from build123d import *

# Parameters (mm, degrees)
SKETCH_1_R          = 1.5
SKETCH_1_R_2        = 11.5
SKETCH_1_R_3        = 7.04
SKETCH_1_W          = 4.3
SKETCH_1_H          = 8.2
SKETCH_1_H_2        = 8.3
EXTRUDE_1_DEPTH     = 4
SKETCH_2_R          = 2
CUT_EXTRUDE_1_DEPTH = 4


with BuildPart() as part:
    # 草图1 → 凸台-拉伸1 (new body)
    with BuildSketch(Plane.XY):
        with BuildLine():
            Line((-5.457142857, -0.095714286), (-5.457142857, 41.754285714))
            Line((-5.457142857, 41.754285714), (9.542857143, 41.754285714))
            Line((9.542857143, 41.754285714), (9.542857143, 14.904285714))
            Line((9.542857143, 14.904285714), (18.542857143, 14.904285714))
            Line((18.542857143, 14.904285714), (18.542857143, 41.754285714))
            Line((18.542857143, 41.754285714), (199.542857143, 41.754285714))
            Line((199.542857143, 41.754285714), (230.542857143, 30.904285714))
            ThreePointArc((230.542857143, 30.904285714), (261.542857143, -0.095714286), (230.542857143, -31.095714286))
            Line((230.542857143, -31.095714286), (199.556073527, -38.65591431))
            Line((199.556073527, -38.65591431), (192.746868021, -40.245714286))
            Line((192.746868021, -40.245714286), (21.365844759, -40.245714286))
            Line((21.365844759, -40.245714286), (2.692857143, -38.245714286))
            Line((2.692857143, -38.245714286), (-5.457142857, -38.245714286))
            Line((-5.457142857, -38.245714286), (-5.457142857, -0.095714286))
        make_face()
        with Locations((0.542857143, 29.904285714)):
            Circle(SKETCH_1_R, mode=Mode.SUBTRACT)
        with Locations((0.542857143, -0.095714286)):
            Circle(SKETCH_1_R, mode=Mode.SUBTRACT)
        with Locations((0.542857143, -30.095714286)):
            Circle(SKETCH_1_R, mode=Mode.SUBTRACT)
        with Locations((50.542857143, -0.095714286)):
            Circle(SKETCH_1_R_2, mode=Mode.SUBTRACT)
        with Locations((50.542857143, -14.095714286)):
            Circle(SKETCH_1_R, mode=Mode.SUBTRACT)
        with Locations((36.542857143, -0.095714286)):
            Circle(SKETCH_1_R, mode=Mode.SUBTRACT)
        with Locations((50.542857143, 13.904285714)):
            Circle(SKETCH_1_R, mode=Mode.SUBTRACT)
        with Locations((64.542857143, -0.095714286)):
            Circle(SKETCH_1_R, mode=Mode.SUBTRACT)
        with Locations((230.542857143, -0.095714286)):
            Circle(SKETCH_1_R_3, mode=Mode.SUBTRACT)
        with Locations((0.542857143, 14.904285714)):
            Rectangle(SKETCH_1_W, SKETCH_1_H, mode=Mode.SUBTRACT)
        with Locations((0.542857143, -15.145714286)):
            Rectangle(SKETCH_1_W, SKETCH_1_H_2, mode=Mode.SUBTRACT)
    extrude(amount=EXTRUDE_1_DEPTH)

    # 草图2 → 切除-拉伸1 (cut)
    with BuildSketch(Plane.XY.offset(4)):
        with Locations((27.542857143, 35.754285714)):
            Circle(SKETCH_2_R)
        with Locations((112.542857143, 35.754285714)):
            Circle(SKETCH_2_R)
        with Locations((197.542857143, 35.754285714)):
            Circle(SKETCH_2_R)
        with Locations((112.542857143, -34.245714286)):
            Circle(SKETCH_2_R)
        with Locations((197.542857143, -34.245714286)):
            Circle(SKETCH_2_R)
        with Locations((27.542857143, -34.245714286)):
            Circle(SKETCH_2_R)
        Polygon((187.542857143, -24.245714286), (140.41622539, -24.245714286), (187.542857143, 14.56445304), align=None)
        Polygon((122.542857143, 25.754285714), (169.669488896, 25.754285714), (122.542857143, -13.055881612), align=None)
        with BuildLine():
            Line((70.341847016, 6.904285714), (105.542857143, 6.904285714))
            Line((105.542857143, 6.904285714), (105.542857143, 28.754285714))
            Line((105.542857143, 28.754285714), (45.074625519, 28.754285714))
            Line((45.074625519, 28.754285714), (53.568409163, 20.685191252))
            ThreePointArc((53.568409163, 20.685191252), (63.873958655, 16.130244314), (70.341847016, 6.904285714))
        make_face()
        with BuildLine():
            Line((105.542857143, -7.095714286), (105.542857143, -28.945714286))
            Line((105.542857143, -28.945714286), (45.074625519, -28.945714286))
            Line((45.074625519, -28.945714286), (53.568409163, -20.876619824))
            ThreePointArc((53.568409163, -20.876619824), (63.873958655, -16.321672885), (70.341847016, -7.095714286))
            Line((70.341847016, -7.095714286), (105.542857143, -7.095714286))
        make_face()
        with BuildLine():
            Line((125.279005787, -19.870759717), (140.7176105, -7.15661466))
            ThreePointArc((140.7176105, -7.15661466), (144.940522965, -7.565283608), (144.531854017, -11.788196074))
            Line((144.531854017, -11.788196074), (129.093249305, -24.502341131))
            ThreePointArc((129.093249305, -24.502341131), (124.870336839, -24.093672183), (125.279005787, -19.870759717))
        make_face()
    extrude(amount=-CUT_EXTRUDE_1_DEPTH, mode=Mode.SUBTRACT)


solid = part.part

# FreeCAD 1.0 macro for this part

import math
import FreeCAD as App
import Part
import Sketcher
from FreeCAD import Vector
Q = App.Units.Quantity

doc = App.newDocument("Part")
body = doc.addObject("PartDesign::Body", "Body")

# Sketch on XY plane
sketch1 = body.newObject("Sketcher::SketchObject", "Sketch")
sketch1.AttachmentSupport = (doc.getObject("XY_Plane"), [""])
sketch1.MapMode = "FlatFace"
sketch1.addGeometry(Part.LineSegment(Vector(9.5, 41.8, 0), Vector(-5.5, 41.8, 0)), False)
sketch1.addGeometry(Part.LineSegment(Vector(-5.5, 41.8, 0), Vector(-5.5, -38.2, 0)), False)
sketch1.addGeometry(Part.LineSegment(Vector(-5.5, -38.2, 0), Vector(2.7, -38.2, 0)), False)
sketch1.addGeometry(Part.LineSegment(Vector(2.7, -38.2, 0), Vector(21.4, -40.2, 0)), False)
sketch1.addGeometry(Part.LineSegment(Vector(21.4, -40.2, 0), Vector(192.7, -40.2, 0)), False)
sketch1.addGeometry(Part.LineSegment(Vector(192.7, -40.2, 0), Vector(199.6, -38.7, 0)), False)
sketch1.addGeometry(Part.LineSegment(Vector(199.6, -38.7, 0), Vector(230.5, -31.1, 0)), False)
sketch1.addGeometry(Part.ArcOfCircle(Part.Circle(Vector(230.5, -0.1, 0), Vector(0, 0, 1), 31), math.radians(-90), math.radians(90)), False)
sketch1.addGeometry(Part.LineSegment(Vector(230.5, 30.9, 0), Vector(199.5, 41.8, 0)), False)
sketch1.addGeometry(Part.LineSegment(Vector(199.5, 41.8, 0), Vector(18.5, 41.8, 0)), False)
sketch1.addGeometry(Part.LineSegment(Vector(18.5, 41.8, 0), Vector(18.5, 14.9, 0)), False)
sketch1.addGeometry(Part.LineSegment(Vector(18.5, 14.9, 0), Vector(9.5, 14.9, 0)), False)
sketch1.addGeometry(Part.LineSegment(Vector(9.5, 14.9, 0), Vector(9.5, 41.8, 0)), False)
sketch1.addGeometry(Part.Circle(Vector(0.5, -30.1, 0), Vector(0, 0, 1), 1.5), False)
sketch1.addGeometry(Part.Circle(Vector(50.5, -14.1, 0), Vector(0, 0, 1), 1.5), False)
sketch1.addGeometry(Part.LineSegment(Vector(-1.6, -19.3, 0), Vector(-1.6, -11, 0)), False)
sketch1.addGeometry(Part.LineSegment(Vector(-1.6, -11, 0), Vector(2.7, -11, 0)), False)
sketch1.addGeometry(Part.LineSegment(Vector(2.7, -11, 0), Vector(2.7, -19.3, 0)), False)
sketch1.addGeometry(Part.LineSegment(Vector(2.7, -19.3, 0), Vector(-1.6, -19.3, 0)), False)
sketch1.addGeometry(Part.Circle(Vector(230.5, -0.1, 0), Vector(0, 0, 1), 7), False)
sketch1.addGeometry(Part.Circle(Vector(64.5, -0.1, 0), Vector(0, 0, 1), 1.5), False)
sketch1.addGeometry(Part.Circle(Vector(50.5, -0.1, 0), Vector(0, 0, 1), 11.5), False)
sketch1.addGeometry(Part.Circle(Vector(36.5, -0.1, 0), Vector(0, 0, 1), 1.5), False)
sketch1.addGeometry(Part.Circle(Vector(0.5, -0.1, 0), Vector(0, 0, 1), 1.5), False)
sketch1.addGeometry(Part.Circle(Vector(50.5, 13.9, 0), Vector(0, 0, 1), 1.5), False)
sketch1.addGeometry(Part.LineSegment(Vector(-1.6, 10.8, 0), Vector(-1.6, 19, 0)), False)
sketch1.addGeometry(Part.LineSegment(Vector(-1.6, 19, 0), Vector(2.7, 19, 0)), False)
sketch1.addGeometry(Part.LineSegment(Vector(2.7, 19, 0), Vector(2.7, 10.8, 0)), False)
sketch1.addGeometry(Part.LineSegment(Vector(2.7, 10.8, 0), Vector(-1.6, 10.8, 0)), False)
sketch1.addGeometry(Part.Circle(Vector(0.5, 29.9, 0), Vector(0, 0, 1), 1.5), False)
sketch1.addConstraint(Sketcher.Constraint("Coincident", 0, 2, 1, 1))
sketch1.addConstraint(Sketcher.Constraint("Coincident", 1, 2, 2, 1))
sketch1.addConstraint(Sketcher.Constraint("Coincident", 2, 2, 3, 1))
sketch1.addConstraint(Sketcher.Constraint("Coincident", 3, 2, 4, 1))
sketch1.addConstraint(Sketcher.Constraint("Coincident", 4, 2, 5, 1))
sketch1.addConstraint(Sketcher.Constraint("Coincident", 5, 2, 6, 1))
sketch1.addConstraint(Sketcher.Constraint("Coincident", 6, 2, 7, 1))
sketch1.addConstraint(Sketcher.Constraint("Coincident", 7, 2, 8, 1))
sketch1.addConstraint(Sketcher.Constraint("Coincident", 8, 2, 9, 1))
sketch1.addConstraint(Sketcher.Constraint("Coincident", 9, 2, 10, 1))
sketch1.addConstraint(Sketcher.Constraint("Coincident", 10, 2, 11, 1))
sketch1.addConstraint(Sketcher.Constraint("Coincident", 11, 2, 12, 1))
sketch1.addConstraint(Sketcher.Constraint("Coincident", 12, 2, 0, 1))
sketch1.addConstraint(Sketcher.Constraint("Coincident", 15, 2, 16, 1))
sketch1.addConstraint(Sketcher.Constraint("Coincident", 16, 2, 17, 1))
sketch1.addConstraint(Sketcher.Constraint("Coincident", 17, 2, 18, 1))
sketch1.addConstraint(Sketcher.Constraint("Coincident", 18, 2, 15, 1))
sketch1.addConstraint(Sketcher.Constraint("Coincident", 25, 2, 26, 1))
sketch1.addConstraint(Sketcher.Constraint("Coincident", 26, 2, 27, 1))
sketch1.addConstraint(Sketcher.Constraint("Coincident", 27, 2, 28, 1))
sketch1.addConstraint(Sketcher.Constraint("Coincident", 28, 2, 25, 1))
sketch1.addConstraint(Sketcher.Constraint("Horizontal", 0))
sketch1.addConstraint(Sketcher.Constraint("Vertical", 1))
sketch1.addConstraint(Sketcher.Constraint("Horizontal", 2))
sketch1.addConstraint(Sketcher.Constraint("Horizontal", 4))
sketch1.addConstraint(Sketcher.Constraint("Horizontal", 9))
sketch1.addConstraint(Sketcher.Constraint("Vertical", 10))
sketch1.addConstraint(Sketcher.Constraint("Horizontal", 11))
sketch1.addConstraint(Sketcher.Constraint("Vertical", 12))
sketch1.addConstraint(Sketcher.Constraint("Vertical", 15))
sketch1.addConstraint(Sketcher.Constraint("Horizontal", 16))
sketch1.addConstraint(Sketcher.Constraint("Vertical", 17))
sketch1.addConstraint(Sketcher.Constraint("Horizontal", 18))
sketch1.addConstraint(Sketcher.Constraint("Vertical", 25))
sketch1.addConstraint(Sketcher.Constraint("Horizontal", 26))
sketch1.addConstraint(Sketcher.Constraint("Vertical", 27))
sketch1.addConstraint(Sketcher.Constraint("Horizontal", 28))
sketch1.addConstraint(Sketcher.Constraint("Coincident", 19, 3, 7, 3))
sketch1.addConstraint(Sketcher.Constraint("Equal", 13, 14))
sketch1.addConstraint(Sketcher.Constraint("Equal", 14, 20))
sketch1.addConstraint(Sketcher.Constraint("Equal", 20, 22))
sketch1.addConstraint(Sketcher.Constraint("Equal", 22, 23))
sketch1.addConstraint(Sketcher.Constraint("Equal", 23, 24))
sketch1.addConstraint(Sketcher.Constraint("Equal", 24, 29))
sketch1.addConstraint(Sketcher.Constraint("Horizontal", 19, 3, 20, 3))
sketch1.addConstraint(Sketcher.Constraint("Horizontal", 20, 3, 21, 3))
sketch1.addConstraint(Sketcher.Constraint("Horizontal", 21, 3, 22, 3))
sketch1.addConstraint(Sketcher.Constraint("Horizontal", 22, 3, 23, 3))
sketch1.addConstraint(Sketcher.Constraint("Horizontal", 0, 2, 8, 2))
sketch1.addConstraint(Sketcher.Constraint("Vertical", 14, 3, 21, 3))
sketch1.addConstraint(Sketcher.Constraint("Vertical", 13, 3, 23, 3))
sketch1.addConstraint(Sketcher.Constraint("Vertical", 21, 3, 24, 3))
sketch1.addConstraint(Sketcher.Constraint("Vertical", 23, 3, 29, 3))
sketch1.addConstraint(Sketcher.Constraint("Vertical", 19, 3, 6, 2))
sketch1.addConstraint(Sketcher.Constraint("Vertical", 6, 2, 7, 2))
sketch1.addConstraint(Sketcher.Constraint("Vertical", 2, 2, 16, 2))
sketch1.addConstraint(Sketcher.Constraint("Vertical", 18, 2, 25, 2))
sketch1.addConstraint(Sketcher.Constraint("Vertical", 17, 2, 26, 2))
sketch1.addConstraint(Sketcher.Constraint("Diameter", 13, Q("3 mm")))
sketch1.addConstraint(Sketcher.Constraint("Diameter", 21, Q("23 mm")))
sketch1.addConstraint(Sketcher.Constraint("Radius", 7, Q("31 mm")))
sketch1.addConstraint(Sketcher.Constraint("Diameter", 19, Q("14.08 mm")))
sketch1.addConstraint(Sketcher.Constraint("DistanceX", 0, 2, 0, 1, Q("15 mm")))
sketch1.addConstraint(Sketcher.Constraint("DistanceX", 9, 2, 9, 1, Q("181 mm")))
sketch1.addConstraint(Sketcher.Constraint("DistanceX", 11, 2, 11, 1, Q("9 mm")))
sketch1.addConstraint(Sketcher.Constraint("DistanceY", 1, 2, 1, 1, Q("80 mm")))
sketch1.addConstraint(Sketcher.Constraint("DistanceX", 16, 1, 16, 2, Q("4.3 mm")))
sketch1.addConstraint(Sketcher.Constraint("DistanceY", 15, 1, 15, 2, Q("8.3 mm")))
sketch1.addConstraint(Sketcher.Constraint("DistanceY", 25, 1, 25, 2, Q("8.2 mm")))
sketch1.addConstraint(Sketcher.Constraint("DistanceX", 13, 3, 7, 3, Q("230 mm")))
sketch1.addConstraint(Sketcher.Constraint("DistanceY", 13, 3, 7, 3, Q("30 mm")))
sketch1.addConstraint(Sketcher.Constraint("DistanceX", 13, 3, 14, 3, Q("50 mm")))
sketch1.addConstraint(Sketcher.Constraint("DistanceY", 13, 3, 14, 3, Q("16 mm")))
sketch1.addConstraint(Sketcher.Constraint("DistanceX", 14, 3, 20, 3, Q("14 mm")))
sketch1.addConstraint(Sketcher.Constraint("DistanceX", 22, 3, 21, 3, Q("14 mm")))
sketch1.addConstraint(Sketcher.Constraint("DistanceY", 21, 3, 24, 3, Q("14 mm")))
sketch1.addConstraint(Sketcher.Constraint("DistanceY", 23, 3, 29, 3, Q("30 mm")))
sketch1.addConstraint(Sketcher.Constraint("DistanceX", 0, 2, 29, 3, Q("6 mm")))
sketch1.addConstraint(Sketcher.Constraint("DistanceY", 3, 2, 2, 2, Q("2 mm")))
sketch1.addConstraint(Sketcher.Constraint("DistanceY", 22, 3, 10, 2, Q("15 mm")))
sketch1.addConstraint(Sketcher.Constraint("DistanceX", 2, 1, 2, 2, Q("8.15 mm")))
sketch1.addConstraint(Sketcher.Constraint("DistanceY", 10, 2, 10, 1, Q("26.85 mm")))
sketch1.addConstraint(Sketcher.Constraint("DistanceY", 15, 2, 23, 3, Q("10.9 mm")))
sketch1.addConstraint(Sketcher.Constraint("DistanceY", 25, 2, 29, 3, Q("10.9 mm")))
sketch1.addConstraint(Sketcher.Constraint("DistanceY", 4, 2, 5, 2, Q("1.5898 mm")))
sketch1.addConstraint(Sketcher.Constraint("Distance", 3, Q("18.779789 mm")))
sketch1.addConstraint(Sketcher.Constraint("DistanceX", 4, 1, 4, 2, Q("171.381023 mm")))
sketch1.addConstraint(Sketcher.Constraint("DistanceX", -1, 1, 4, 2, Q("192.746868 mm")))
sketch1.addConstraint(Sketcher.Constraint("Distance", 5, Q("6.992335 mm")))
sketch1.addConstraint(Sketcher.Constraint("DistanceY", 7, 3, -1, 1, Q("0.095714 mm")))
pad1 = body.newObject("PartDesign::Pad", "Pad")
pad1.Profile = sketch1
pad1.Length = 4

# Sketch on XY plane
sketch2 = body.newObject("Sketcher::SketchObject", "Sketch001")
sketch2.AttachmentSupport = (doc.getObject("XY_Plane"), [""])
sketch2.MapMode = "FlatFace"
sketch2.AttachmentOffset = App.Placement(Vector(0, 0, 4), App.Rotation())
sketch2.addGeometry(Part.Circle(Vector(27.5, 35.8, 0), Vector(0, 0, 1), 2), False)
sketch2.addGeometry(Part.Circle(Vector(112.5, 35.8, 0), Vector(0, 0, 1), 2), False)
sketch2.addGeometry(Part.Circle(Vector(197.5, 35.8, 0), Vector(0, 0, 1), 2), False)
sketch2.addGeometry(Part.Circle(Vector(112.5, -34.2, 0), Vector(0, 0, 1), 2), False)
sketch2.addGeometry(Part.Circle(Vector(197.5, -34.2, 0), Vector(0, 0, 1), 2), False)
sketch2.addGeometry(Part.Circle(Vector(27.5, -34.2, 0), Vector(0, 0, 1), 2), False)
sketch2.addGeometry(Part.LineSegment(Vector(140.4, -24.2, 0), Vector(187.5, -24.2, 0)), False)
sketch2.addGeometry(Part.LineSegment(Vector(187.5, -24.2, 0), Vector(187.5, 14.6, 0)), False)
sketch2.addGeometry(Part.LineSegment(Vector(187.5, 14.6, 0), Vector(140.4, -24.2, 0)), False)
sketch2.addGeometry(Part.LineSegment(Vector(169.7, 25.8, 0), Vector(122.5, 25.8, 0)), False)
sketch2.addGeometry(Part.LineSegment(Vector(122.5, 25.8, 0), Vector(122.5, -13.1, 0)), False)
sketch2.addGeometry(Part.LineSegment(Vector(122.5, -13.1, 0), Vector(169.7, 25.8, 0)), False)
sketch2.addGeometry(Part.LineSegment(Vector(70.3, 6.9, 0), Vector(105.5, 6.9, 0)), False)
sketch2.addGeometry(Part.LineSegment(Vector(105.5, 6.9, 0), Vector(105.5, 28.8, 0)), False)
sketch2.addGeometry(Part.LineSegment(Vector(105.5, 28.8, 0), Vector(45.1, 28.8, 0)), False)
sketch2.addGeometry(Part.LineSegment(Vector(45.1, 28.8, 0), Vector(53.6, 20.7, 0)), False)
sketch2.addGeometry(Part.ArcOfCircle(Part.Circle(Vector(50.5, -0.1, 0), Vector(0, 0, 1), 21), math.radians(19), math.radians(82)), False)
sketch2.addGeometry(Part.LineSegment(Vector(105.5, -28.9, 0), Vector(105.5, -7.1, 0)), False)
sketch2.addGeometry(Part.LineSegment(Vector(105.5, -7.1, 0), Vector(70.3, -7.1, 0)), False)
sketch2.addGeometry(Part.ArcOfCircle(Part.Circle(Vector(50.5, -0.1, 0), Vector(0, 0, 1), 21), math.radians(-82), math.radians(-19)), False)
sketch2.addGeometry(Part.LineSegment(Vector(53.6, -20.9, 0), Vector(45.1, -28.9, 0)), False)
sketch2.addGeometry(Part.LineSegment(Vector(45.1, -28.9, 0), Vector(105.5, -28.9, 0)), False)
sketch2.addGeometry(Part.LineSegment(Vector(140.7, -7.2, 0), Vector(125.3, -19.9, 0)), False)
sketch2.addGeometry(Part.ArcOfCircle(Part.Circle(Vector(127.2, -22.2, 0), Vector(0, 0, 1), 3), math.radians(129), math.radians(309)), False)
sketch2.addGeometry(Part.LineSegment(Vector(129.1, -24.5, 0), Vector(144.5, -11.8, 0)), False)
sketch2.addGeometry(Part.ArcOfCircle(Part.Circle(Vector(142.6, -9.5, 0), Vector(0, 0, 1), 3), math.radians(-51), math.radians(129)), False)
sketch2.addConstraint(Sketcher.Constraint("Coincident", 6, 2, 7, 1))
sketch2.addConstraint(Sketcher.Constraint("Coincident", 7, 2, 8, 1))
sketch2.addConstraint(Sketcher.Constraint("Coincident", 8, 2, 6, 1))
sketch2.addConstraint(Sketcher.Constraint("Coincident", 9, 2, 10, 1))
sketch2.addConstraint(Sketcher.Constraint("Coincident", 10, 2, 11, 1))
sketch2.addConstraint(Sketcher.Constraint("Coincident", 11, 2, 9, 1))
sketch2.addConstraint(Sketcher.Constraint("Coincident", 12, 2, 13, 1))
sketch2.addConstraint(Sketcher.Constraint("Coincident", 13, 2, 14, 1))
sketch2.addConstraint(Sketcher.Constraint("Coincident", 14, 2, 15, 1))
sketch2.addConstraint(Sketcher.Constraint("Coincident", 15, 2, 16, 2))
sketch2.addConstraint(Sketcher.Constraint("Coincident", 16, 1, 12, 1))
sketch2.addConstraint(Sketcher.Constraint("Coincident", 17, 2, 18, 1))
sketch2.addConstraint(Sketcher.Constraint("Coincident", 18, 2, 19, 2))
sketch2.addConstraint(Sketcher.Constraint("Coincident", 19, 1, 20, 1))
sketch2.addConstraint(Sketcher.Constraint("Coincident", 20, 2, 21, 1))
sketch2.addConstraint(Sketcher.Constraint("Coincident", 21, 2, 17, 1))
sketch2.addConstraint(Sketcher.Constraint("Tangent", 22, 2, 23, 1))
sketch2.addConstraint(Sketcher.Constraint("Tangent", 23, 2, 24, 1))
sketch2.addConstraint(Sketcher.Constraint("Tangent", 24, 2, 25, 1))
sketch2.addConstraint(Sketcher.Constraint("Tangent", 25, 2, 22, 1))
sketch2.addConstraint(Sketcher.Constraint("Horizontal", 6))
sketch2.addConstraint(Sketcher.Constraint("Vertical", 7))
sketch2.addConstraint(Sketcher.Constraint("Horizontal", 9))
sketch2.addConstraint(Sketcher.Constraint("Vertical", 10))
sketch2.addConstraint(Sketcher.Constraint("Horizontal", 12))
sketch2.addConstraint(Sketcher.Constraint("Vertical", 13))
sketch2.addConstraint(Sketcher.Constraint("Horizontal", 14))
sketch2.addConstraint(Sketcher.Constraint("Vertical", 17))
sketch2.addConstraint(Sketcher.Constraint("Horizontal", 18))
sketch2.addConstraint(Sketcher.Constraint("Horizontal", 21))
sketch2.addConstraint(Sketcher.Constraint("Coincident", 19, 3, 16, 3))
sketch2.addConstraint(Sketcher.Constraint("Equal", 0, 1))
sketch2.addConstraint(Sketcher.Constraint("Equal", 1, 2))
sketch2.addConstraint(Sketcher.Constraint("Equal", 2, 3))
sketch2.addConstraint(Sketcher.Constraint("Equal", 3, 4))
sketch2.addConstraint(Sketcher.Constraint("Equal", 4, 5))
sketch2.addConstraint(Sketcher.Constraint("Equal", 16, 19))
sketch2.addConstraint(Sketcher.Constraint("Equal", 23, 25))
sketch2.addConstraint(Sketcher.Constraint("Parallel", 8, 11))
sketch2.addConstraint(Sketcher.Constraint("Parallel", 11, 22))
sketch2.addConstraint(Sketcher.Constraint("Horizontal", 0, 3, 1, 3))
sketch2.addConstraint(Sketcher.Constraint("Horizontal", 1, 3, 2, 3))
sketch2.addConstraint(Sketcher.Constraint("Horizontal", 3, 3, 4, 3))
sketch2.addConstraint(Sketcher.Constraint("Horizontal", 4, 3, 5, 3))
sketch2.addConstraint(Sketcher.Constraint("Vertical", 1, 3, 3, 3))
sketch2.addConstraint(Sketcher.Constraint("Vertical", 2, 3, 4, 3))
sketch2.addConstraint(Sketcher.Constraint("Vertical", 0, 3, 5, 3))
sketch2.addConstraint(Sketcher.Constraint("Vertical", 13, 2, 17, 2))
sketch2.addConstraint(Sketcher.Constraint("Vertical", 16, 1, 18, 2))
sketch2.addConstraint(Sketcher.Constraint("Vertical", 15, 2, 19, 1))
sketch2.addConstraint(Sketcher.Constraint("Vertical", 14, 2, 20, 2))
sketch2.addConstraint(Sketcher.Constraint("Equal", 6, 9))
sketch2.addConstraint(Sketcher.Constraint("Equal", 13, 17))
sketch2.addConstraint(Sketcher.Constraint("Diameter", 0, Q("4 mm")))
sketch2.addConstraint(Sketcher.Constraint("Radius", 16, Q("21 mm")))
sketch2.addConstraint(Sketcher.Constraint("Radius", 23, Q("3 mm")))
sketch2.addConstraint(Sketcher.Constraint("Distance", 22, Q("20 mm")))
sketch2.addConstraint(Sketcher.Constraint("DistanceX", 0, 3, 1, 3, Q("85 mm")))
sketch2.addConstraint(Sketcher.Constraint("DistanceX", 1, 3, 2, 3, Q("85 mm")))
sketch2.addConstraint(Sketcher.Constraint("DistanceY", 3, 3, 1, 3, Q("70 mm")))
sketch2.addConstraint(Sketcher.Constraint("DistanceX", 5, 3, 16, 3, Q("23 mm")))
sketch2.addConstraint(Sketcher.Constraint("DistanceX", 6, 2, 4, 3, Q("10 mm")))
sketch2.addConstraint(Sketcher.Constraint("DistanceY", 4, 3, 6, 2, Q("10 mm")))
sketch2.addConstraint(Sketcher.Constraint("DistanceX", 1, 3, 9, 2, Q("10 mm")))
sketch2.addConstraint(Sketcher.Constraint("DistanceY", 9, 2, 1, 3, Q("10 mm")))
sketch2.addConstraint(Sketcher.Constraint("DistanceX", 12, 2, 9, 2, Q("17 mm")))
sketch2.addConstraint(Sketcher.Constraint("DistanceY", 13, 2, 1, 3, Q("7 mm")))
sketch2.addConstraint(Sketcher.Constraint("DistanceY", 16, 3, 16, 1, Q("7 mm")))
sketch2.addConstraint(Sketcher.Constraint("DistanceY", 13, 1, 13, 2, Q("21.85 mm")))
sketch2.addConstraint(Sketcher.Constraint("DistanceX", 6, 1, 6, 2, Q("47.126632 mm")))
sketch2.addConstraint(Sketcher.Constraint("DistanceX", 14, 2, 14, 1, Q("60.468232 mm")))
sketch2.addConstraint(Sketcher.Constraint("DistanceY", 8, 2, 25, 2, Q("17.0891 mm")))
sketch2.addConstraint(Sketcher.Constraint("DistanceY", 7, 1, 7, 2, Q("38.810167 mm")))
sketch2.addConstraint(Sketcher.Constraint("DistanceY", 23, 3, -1, 1, Q("22.18655 mm")))
sketch2.addConstraint(Sketcher.Constraint("DistanceX", -1, 1, 11, 2, Q("169.669489 mm")))
sketch2.addConstraint(Sketcher.Constraint("DistanceX", -1, 1, 15, 2, Q("53.568409 mm")))
sketch2.addConstraint(Sketcher.Constraint("DistanceX", -1, 1, 23, 2, Q("129.093249 mm")))
pocket1 = body.newObject("PartDesign::Pocket", "Pocket")
pocket1.Profile = sketch2
pocket1.Length = 4

doc.recompute()
